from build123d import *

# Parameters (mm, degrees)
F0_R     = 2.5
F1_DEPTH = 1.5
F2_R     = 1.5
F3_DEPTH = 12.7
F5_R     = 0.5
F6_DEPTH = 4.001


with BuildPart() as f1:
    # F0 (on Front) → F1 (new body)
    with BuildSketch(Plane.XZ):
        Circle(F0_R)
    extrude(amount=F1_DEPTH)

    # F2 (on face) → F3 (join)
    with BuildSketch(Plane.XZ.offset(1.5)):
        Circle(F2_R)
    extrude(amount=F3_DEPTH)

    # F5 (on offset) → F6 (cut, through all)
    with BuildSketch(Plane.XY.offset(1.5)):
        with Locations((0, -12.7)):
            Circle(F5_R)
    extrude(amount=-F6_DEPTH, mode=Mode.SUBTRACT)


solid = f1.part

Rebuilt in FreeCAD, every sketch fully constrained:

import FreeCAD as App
import Part
import Sketcher
from FreeCAD import Vector

doc = App.newDocument("Part")
body = doc.addObject("PartDesign::Body", "Body")

sketch1 = body.newObject("Sketcher::SketchObject", "Sketch")
sketch1.AttachmentSupport = (doc.getObject("XZ_Plane"), [""])
sketch1.MapMode = "FlatFace"
sketch1.addGeometry(Part.Circle(Vector(0, 0, 0), Vector(0, 0, 1), 2.5), False)
sketch1.addConstraint(Sketcher.Constraint("Coincident", 0, 3, -1, 1))
sketch1.addConstraint(Sketcher.Constraint("Diameter", 0, 5.0))
pad1 = body.newObject("PartDesign::Pad", "Pad")
pad1.Profile = sketch1
pad1.Length = 1.5

sketch2 = body.newObject("Sketcher::SketchObject", "Sketch001")
sketch2.AttachmentSupport = (doc.getObject("XZ_Plane"), [""])
sketch2.MapMode = "FlatFace"
sketch2.AttachmentOffset = App.Placement(Vector(0, 0, 1.5), App.Rotation())
sketch2.addGeometry(Part.Circle(Vector(0, 0, 0), Vector(0, 0, 1), 1.5), False)
sketch2.addConstraint(Sketcher.Constraint("Coincident", 0, 3, -1, 1))
sketch2.addConstraint(Sketcher.Constraint("Diameter", 0, 3.0))
pad2 = body.newObject("PartDesign::Pad", "Pad001")
pad2.Profile = sketch2
pad2.Length = 12.7

sketch3 = body.newObject("Sketcher::SketchObject", "Sketch002")
sketch3.AttachmentSupport = (doc.getObject("XY_Plane"), [""])
sketch3.MapMode = "FlatFace"
sketch3.AttachmentOffset = App.Placement(Vector(0, 0, 1.5), App.Rotation())
sketch3.addGeometry(Part.Circle(Vector(0, -12.7, 0), Vector(0, 0, 1), 0.5), False)
sketch3.addConstraint(Sketcher.Constraint("PointOnObject", 0, 3, -2))
sketch3.addConstraint(Sketcher.Constraint("Diameter", 0, 1.0))
sketch3.addConstraint(Sketcher.Constraint("DistanceY", 0, 3, -1, 1, 12.7))
pocket1 = body.newObject("PartDesign::Pocket", "Pocket")
pocket1.Profile = sketch3
pocket1.Type = "ThroughAll"

doc.recompute()
